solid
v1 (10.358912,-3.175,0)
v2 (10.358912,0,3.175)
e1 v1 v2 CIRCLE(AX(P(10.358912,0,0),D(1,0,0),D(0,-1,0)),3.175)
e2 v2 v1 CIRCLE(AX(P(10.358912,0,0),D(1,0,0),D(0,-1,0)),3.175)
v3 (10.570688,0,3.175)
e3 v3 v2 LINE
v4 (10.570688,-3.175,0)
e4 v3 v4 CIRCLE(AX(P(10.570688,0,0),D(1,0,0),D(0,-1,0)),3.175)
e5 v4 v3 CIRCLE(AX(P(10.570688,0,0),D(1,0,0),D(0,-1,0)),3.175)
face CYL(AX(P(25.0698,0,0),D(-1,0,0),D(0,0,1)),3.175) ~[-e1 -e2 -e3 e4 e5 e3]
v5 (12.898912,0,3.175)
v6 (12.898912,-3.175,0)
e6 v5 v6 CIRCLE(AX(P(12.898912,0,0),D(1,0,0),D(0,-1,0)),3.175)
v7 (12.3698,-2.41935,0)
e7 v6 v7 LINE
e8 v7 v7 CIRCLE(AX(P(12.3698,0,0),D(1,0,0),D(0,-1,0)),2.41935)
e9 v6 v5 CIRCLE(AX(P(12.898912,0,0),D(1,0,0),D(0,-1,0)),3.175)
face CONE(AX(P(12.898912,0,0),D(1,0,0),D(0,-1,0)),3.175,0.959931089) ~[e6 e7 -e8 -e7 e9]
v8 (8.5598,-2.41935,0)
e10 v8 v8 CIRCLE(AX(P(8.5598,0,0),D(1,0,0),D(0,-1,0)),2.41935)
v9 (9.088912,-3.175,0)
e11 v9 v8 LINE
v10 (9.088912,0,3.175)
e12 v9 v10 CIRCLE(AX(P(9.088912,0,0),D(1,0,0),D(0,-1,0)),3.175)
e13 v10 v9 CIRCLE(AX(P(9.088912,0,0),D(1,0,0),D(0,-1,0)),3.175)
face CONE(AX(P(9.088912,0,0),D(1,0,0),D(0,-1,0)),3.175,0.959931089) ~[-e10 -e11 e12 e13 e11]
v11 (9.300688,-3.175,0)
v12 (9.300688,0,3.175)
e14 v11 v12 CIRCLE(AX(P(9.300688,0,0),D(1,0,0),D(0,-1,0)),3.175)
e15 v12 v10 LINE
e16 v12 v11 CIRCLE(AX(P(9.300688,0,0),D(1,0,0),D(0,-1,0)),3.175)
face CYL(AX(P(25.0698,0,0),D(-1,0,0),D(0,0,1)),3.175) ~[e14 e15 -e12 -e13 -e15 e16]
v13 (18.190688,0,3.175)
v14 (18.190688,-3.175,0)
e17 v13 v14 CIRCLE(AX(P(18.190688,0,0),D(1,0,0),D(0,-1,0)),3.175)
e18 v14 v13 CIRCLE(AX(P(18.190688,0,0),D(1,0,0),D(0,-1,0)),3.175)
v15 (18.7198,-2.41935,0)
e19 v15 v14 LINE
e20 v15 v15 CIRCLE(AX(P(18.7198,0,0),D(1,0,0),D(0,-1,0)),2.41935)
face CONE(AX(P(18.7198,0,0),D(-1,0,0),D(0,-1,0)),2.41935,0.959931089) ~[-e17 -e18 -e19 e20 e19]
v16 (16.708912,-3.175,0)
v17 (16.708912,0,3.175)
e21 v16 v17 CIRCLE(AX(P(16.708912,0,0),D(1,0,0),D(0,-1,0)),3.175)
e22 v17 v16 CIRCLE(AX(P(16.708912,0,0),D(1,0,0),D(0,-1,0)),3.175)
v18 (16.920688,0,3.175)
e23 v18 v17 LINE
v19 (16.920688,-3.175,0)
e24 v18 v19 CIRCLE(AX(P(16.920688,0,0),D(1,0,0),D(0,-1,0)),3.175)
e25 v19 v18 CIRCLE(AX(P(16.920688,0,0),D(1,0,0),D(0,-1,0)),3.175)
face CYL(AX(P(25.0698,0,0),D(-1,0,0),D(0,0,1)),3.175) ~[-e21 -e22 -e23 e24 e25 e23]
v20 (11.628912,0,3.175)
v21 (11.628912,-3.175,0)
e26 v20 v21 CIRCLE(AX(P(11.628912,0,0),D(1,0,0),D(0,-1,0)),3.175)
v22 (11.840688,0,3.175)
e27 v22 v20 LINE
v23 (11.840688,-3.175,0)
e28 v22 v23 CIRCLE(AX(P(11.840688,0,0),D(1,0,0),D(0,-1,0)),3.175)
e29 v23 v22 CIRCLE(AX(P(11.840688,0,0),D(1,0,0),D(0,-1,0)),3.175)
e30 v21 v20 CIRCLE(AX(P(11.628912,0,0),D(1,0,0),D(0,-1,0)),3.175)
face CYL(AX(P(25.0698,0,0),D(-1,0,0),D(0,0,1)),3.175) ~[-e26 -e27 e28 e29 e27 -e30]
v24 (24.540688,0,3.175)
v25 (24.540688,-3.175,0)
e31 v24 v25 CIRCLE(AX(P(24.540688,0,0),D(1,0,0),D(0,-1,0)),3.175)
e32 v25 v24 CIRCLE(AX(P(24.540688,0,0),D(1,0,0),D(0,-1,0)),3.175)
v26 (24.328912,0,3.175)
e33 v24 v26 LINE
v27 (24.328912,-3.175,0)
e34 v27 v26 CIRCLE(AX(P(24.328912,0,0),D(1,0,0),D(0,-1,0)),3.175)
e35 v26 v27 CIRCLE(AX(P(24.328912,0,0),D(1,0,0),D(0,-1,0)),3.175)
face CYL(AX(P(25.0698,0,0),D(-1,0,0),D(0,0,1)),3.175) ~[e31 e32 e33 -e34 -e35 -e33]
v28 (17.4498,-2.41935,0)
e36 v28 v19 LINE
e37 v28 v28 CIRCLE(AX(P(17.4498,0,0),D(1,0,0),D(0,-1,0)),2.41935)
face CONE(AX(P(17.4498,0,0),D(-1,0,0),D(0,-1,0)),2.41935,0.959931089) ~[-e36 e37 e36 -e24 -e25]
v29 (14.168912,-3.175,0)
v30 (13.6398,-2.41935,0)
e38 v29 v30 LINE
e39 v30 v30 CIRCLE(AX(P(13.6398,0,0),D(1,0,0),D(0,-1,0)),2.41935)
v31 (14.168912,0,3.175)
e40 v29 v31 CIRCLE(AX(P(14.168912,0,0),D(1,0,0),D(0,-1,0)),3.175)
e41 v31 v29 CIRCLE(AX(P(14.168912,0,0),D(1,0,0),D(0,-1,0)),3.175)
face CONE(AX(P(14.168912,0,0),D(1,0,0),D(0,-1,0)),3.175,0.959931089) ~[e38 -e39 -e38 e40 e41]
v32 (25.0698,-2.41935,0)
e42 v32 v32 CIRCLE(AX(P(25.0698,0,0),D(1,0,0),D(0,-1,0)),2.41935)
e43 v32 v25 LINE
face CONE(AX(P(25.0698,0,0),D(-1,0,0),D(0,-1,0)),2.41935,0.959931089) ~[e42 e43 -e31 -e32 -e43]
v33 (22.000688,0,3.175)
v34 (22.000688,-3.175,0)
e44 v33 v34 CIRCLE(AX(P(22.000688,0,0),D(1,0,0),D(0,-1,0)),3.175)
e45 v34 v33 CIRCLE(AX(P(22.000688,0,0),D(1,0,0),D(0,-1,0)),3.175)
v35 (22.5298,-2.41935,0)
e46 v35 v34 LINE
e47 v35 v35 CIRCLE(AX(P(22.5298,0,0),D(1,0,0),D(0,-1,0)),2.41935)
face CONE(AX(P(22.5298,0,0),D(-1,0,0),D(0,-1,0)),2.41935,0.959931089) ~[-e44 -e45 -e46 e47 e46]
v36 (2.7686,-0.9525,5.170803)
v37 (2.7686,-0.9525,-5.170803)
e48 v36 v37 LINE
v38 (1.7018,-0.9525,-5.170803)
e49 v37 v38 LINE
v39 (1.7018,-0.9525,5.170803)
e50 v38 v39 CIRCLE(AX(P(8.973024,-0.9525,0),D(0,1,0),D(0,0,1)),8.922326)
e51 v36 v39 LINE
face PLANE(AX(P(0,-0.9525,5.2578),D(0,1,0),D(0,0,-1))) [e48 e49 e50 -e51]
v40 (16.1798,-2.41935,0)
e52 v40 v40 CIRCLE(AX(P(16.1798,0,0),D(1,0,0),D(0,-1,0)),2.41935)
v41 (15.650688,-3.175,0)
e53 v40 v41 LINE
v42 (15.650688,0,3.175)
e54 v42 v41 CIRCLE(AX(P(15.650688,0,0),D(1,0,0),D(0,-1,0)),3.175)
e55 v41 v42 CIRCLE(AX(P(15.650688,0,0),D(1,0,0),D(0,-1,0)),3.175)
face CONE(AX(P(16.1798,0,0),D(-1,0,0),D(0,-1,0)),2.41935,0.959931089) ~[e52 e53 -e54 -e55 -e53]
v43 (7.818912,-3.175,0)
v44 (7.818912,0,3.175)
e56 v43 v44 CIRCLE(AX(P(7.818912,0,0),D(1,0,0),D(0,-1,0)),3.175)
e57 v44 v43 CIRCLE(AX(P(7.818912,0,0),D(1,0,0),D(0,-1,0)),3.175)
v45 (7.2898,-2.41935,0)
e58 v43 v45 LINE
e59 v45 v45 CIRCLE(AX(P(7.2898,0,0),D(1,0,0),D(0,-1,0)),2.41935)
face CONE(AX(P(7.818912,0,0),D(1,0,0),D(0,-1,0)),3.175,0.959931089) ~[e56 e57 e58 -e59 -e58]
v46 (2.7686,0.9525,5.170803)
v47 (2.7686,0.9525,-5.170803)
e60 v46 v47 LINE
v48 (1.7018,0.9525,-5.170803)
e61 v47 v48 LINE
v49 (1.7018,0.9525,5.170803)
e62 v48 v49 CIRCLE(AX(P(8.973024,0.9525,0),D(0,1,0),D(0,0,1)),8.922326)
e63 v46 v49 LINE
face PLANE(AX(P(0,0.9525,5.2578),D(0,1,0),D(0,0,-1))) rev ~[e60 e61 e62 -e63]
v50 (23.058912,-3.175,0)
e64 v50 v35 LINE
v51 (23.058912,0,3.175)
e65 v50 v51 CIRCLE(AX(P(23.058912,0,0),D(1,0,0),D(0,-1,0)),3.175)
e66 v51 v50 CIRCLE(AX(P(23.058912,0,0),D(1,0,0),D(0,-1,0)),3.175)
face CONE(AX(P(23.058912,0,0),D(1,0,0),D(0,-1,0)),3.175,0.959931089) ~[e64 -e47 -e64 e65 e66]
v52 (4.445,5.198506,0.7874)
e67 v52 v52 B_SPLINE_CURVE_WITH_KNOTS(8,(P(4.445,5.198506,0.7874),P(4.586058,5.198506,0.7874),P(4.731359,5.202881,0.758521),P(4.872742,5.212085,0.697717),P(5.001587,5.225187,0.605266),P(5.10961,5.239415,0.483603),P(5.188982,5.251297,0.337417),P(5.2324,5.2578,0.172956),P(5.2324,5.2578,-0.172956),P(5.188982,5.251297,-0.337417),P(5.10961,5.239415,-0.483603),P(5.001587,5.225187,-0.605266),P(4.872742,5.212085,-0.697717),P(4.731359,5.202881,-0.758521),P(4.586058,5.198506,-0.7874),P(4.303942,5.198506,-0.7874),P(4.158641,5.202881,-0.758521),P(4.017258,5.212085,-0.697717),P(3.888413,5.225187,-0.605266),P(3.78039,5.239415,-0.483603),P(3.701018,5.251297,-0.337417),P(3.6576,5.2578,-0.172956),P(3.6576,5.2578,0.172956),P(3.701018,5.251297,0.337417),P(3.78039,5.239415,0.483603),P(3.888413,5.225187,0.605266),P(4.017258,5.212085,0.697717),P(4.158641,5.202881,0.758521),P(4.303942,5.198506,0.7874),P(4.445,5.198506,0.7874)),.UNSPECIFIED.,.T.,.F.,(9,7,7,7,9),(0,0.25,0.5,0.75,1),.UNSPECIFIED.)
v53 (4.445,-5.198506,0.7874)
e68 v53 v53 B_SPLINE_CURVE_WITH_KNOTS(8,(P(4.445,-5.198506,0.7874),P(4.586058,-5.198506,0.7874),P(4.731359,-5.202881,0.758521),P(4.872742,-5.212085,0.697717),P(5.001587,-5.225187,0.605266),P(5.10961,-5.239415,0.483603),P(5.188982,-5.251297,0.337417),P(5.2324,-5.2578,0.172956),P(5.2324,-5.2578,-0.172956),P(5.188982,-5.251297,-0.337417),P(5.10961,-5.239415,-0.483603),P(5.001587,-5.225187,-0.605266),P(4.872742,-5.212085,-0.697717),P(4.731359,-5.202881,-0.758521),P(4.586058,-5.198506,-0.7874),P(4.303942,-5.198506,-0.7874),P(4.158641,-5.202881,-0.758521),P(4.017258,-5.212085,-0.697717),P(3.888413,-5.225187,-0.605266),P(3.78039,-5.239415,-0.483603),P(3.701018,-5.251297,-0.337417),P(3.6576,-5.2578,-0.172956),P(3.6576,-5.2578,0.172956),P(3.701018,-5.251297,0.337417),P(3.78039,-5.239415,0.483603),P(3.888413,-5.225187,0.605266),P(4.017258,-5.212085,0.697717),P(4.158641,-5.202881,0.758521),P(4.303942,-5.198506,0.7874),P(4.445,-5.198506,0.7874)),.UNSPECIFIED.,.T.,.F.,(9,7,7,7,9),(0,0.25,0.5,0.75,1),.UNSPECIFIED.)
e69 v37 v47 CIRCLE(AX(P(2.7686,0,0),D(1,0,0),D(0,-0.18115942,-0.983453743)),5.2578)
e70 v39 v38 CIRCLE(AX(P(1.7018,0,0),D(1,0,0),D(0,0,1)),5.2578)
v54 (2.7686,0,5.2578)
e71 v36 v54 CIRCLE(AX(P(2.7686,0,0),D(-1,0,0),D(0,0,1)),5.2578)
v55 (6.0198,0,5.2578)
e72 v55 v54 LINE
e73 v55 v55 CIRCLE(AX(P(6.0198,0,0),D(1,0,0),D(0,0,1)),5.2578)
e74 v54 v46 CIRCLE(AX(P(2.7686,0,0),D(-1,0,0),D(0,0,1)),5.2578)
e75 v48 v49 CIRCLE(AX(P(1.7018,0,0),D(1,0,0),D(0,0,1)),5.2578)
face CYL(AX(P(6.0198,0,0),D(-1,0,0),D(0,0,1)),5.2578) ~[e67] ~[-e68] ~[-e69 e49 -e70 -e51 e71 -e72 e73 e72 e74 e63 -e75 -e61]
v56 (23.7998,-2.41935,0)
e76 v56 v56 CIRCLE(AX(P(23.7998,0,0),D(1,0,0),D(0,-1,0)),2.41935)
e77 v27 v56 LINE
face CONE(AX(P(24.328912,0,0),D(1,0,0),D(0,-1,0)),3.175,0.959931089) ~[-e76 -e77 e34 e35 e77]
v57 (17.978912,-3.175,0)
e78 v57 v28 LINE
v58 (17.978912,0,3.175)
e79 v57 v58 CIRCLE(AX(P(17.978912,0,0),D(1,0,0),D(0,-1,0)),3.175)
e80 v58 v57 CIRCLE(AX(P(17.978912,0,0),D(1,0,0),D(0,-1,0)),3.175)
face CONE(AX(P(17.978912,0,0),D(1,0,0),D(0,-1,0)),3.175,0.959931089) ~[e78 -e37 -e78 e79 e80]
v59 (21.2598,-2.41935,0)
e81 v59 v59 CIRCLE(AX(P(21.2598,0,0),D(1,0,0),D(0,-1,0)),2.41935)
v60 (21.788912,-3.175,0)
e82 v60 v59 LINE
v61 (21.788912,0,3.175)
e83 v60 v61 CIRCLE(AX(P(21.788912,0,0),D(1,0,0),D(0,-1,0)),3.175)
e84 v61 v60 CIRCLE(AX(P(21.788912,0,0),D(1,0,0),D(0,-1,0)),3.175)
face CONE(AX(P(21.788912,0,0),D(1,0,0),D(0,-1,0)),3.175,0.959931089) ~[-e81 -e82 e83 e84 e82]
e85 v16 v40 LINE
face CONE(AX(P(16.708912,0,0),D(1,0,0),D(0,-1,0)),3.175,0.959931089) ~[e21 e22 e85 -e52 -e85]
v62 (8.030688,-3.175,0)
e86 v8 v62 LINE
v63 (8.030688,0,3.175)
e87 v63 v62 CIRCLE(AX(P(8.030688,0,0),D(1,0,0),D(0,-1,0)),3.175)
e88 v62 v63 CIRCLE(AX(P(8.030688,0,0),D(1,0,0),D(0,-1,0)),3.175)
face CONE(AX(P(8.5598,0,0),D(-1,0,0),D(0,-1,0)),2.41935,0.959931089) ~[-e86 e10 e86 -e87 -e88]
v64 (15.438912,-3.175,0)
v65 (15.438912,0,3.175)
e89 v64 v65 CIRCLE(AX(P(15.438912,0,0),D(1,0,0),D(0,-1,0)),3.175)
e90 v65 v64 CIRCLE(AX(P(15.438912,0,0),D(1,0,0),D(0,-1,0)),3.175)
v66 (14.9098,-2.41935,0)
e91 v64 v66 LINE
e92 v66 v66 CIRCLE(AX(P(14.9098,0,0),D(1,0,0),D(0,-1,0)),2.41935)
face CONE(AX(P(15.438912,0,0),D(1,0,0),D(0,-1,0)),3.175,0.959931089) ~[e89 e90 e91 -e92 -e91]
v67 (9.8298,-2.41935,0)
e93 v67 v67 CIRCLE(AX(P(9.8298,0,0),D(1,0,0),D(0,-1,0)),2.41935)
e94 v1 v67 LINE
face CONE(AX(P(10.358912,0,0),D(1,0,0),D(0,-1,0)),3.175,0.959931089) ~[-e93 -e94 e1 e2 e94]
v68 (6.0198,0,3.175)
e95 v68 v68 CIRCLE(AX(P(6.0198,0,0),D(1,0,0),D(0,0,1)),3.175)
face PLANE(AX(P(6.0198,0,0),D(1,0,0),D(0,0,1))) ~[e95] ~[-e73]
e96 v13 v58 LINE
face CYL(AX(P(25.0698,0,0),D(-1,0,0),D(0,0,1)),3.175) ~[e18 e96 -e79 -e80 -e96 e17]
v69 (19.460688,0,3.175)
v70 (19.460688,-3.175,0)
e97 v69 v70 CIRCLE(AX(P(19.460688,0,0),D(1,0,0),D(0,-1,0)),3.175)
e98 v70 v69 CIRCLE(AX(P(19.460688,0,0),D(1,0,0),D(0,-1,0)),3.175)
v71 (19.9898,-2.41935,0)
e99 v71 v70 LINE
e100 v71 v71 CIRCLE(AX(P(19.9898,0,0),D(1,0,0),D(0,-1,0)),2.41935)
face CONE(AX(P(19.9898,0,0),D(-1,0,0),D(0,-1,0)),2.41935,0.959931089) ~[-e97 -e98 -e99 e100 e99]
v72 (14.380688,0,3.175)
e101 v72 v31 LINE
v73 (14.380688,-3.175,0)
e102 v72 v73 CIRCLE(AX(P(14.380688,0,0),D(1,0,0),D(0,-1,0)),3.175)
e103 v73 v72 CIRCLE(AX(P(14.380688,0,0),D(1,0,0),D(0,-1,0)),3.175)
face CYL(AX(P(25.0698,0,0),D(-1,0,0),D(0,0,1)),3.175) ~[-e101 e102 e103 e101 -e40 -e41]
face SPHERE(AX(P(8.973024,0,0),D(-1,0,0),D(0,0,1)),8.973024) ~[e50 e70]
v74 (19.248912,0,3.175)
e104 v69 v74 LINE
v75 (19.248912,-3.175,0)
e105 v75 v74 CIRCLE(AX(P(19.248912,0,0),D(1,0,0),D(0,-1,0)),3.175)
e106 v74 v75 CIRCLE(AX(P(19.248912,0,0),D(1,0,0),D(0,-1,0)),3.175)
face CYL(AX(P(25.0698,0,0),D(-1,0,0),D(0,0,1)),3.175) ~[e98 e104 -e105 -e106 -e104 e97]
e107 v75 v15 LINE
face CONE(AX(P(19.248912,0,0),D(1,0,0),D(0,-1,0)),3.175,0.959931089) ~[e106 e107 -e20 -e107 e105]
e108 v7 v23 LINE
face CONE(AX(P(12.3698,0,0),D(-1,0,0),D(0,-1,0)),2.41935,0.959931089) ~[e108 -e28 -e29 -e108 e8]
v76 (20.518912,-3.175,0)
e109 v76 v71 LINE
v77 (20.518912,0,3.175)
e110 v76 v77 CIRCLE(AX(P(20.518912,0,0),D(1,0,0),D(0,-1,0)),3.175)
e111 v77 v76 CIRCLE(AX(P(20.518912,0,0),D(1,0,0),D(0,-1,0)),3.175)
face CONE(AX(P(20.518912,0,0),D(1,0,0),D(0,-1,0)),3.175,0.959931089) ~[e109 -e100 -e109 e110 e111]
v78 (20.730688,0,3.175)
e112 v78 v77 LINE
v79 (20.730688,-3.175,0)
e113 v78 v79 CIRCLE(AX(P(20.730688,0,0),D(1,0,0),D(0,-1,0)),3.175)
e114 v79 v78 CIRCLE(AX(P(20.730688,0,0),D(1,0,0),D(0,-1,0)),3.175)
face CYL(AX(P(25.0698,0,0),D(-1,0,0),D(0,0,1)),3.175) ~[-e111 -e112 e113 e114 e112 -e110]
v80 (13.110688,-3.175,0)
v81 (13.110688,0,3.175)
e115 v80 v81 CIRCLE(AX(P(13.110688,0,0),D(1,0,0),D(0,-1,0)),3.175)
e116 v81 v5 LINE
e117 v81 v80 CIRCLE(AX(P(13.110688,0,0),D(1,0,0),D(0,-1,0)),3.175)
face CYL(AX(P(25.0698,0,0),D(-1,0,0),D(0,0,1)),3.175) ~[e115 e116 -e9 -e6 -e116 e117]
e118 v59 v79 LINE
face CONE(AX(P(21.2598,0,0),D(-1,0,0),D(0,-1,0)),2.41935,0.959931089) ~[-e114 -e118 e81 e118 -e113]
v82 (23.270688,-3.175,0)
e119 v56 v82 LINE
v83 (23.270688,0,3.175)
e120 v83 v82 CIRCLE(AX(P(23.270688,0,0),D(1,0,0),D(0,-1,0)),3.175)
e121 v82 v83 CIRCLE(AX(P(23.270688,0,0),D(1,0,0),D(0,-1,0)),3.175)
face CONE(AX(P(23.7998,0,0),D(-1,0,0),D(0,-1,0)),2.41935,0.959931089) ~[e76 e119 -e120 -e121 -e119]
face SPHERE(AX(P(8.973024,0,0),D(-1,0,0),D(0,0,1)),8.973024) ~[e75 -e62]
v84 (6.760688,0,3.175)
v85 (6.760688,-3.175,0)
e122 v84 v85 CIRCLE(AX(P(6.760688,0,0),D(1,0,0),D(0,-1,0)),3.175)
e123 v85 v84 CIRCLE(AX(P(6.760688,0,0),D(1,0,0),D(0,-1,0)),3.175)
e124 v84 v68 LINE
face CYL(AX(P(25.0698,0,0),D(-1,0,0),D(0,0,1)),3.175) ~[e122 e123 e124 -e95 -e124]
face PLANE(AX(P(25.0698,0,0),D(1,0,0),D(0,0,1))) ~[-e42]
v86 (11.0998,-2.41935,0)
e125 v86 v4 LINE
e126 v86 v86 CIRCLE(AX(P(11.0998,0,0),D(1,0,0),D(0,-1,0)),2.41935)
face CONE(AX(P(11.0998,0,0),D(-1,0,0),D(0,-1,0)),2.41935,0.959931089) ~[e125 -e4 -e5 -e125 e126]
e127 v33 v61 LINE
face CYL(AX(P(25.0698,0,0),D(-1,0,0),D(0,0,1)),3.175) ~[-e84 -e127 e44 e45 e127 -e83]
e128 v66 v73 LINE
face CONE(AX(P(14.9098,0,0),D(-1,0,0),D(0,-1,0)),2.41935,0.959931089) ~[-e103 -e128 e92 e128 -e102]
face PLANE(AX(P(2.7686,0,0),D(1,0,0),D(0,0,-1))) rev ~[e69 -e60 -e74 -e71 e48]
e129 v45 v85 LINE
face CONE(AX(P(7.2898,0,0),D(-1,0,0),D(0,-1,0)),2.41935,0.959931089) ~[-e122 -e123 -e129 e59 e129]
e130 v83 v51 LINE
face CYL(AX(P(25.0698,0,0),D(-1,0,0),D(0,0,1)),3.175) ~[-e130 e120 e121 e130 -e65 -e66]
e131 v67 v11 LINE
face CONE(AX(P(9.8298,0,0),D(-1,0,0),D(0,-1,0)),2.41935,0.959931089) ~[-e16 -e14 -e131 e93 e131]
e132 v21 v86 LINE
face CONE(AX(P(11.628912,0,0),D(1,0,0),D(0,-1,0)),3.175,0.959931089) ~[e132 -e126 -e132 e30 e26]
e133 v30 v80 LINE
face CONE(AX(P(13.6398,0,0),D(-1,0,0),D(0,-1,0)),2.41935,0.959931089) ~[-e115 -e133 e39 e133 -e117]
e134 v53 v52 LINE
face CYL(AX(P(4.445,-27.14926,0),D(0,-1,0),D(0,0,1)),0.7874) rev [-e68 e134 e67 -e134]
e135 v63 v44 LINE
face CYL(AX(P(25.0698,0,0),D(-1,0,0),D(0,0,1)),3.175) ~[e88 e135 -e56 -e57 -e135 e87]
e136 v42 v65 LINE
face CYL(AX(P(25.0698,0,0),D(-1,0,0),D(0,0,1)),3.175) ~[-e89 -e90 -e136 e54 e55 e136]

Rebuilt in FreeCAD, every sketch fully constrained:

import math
import FreeCAD as App
import Part
import Sketcher

V = App.Vector
Q = App.Units.Quantity

doc = App.newDocument("Part")
body = doc.addObject("PartDesign::Body", "Body")

# Sketch on XY plane
sketch1 = doc.addObject("Sketcher::SketchObject", "Sketch")
body.addObject(sketch1)
sketch1.AttachmentSupport = (doc.XY_Plane, [""])
sketch1.MapMode = "FlatFace"
sketch1.addGeometry(Part.LineSegment(V(6, 3.2, 0), V(6, 5.3, 0)), False)
sketch1.addGeometry(Part.LineSegment(V(6, 5.3, 0), V(1.7, 5.3, 0)), False)
sketch1.addGeometry(Part.ArcOfCircle(Part.Circle(V(9, 0, 0), V(0, 0, 1), 9), math.radians(144), math.radians(180)), False)
sketch1.addGeometry(Part.LineSegment(V(0, 0, 0), V(25.1, 0, 0)), False)
sketch1.addGeometry(Part.LineSegment(V(25.1, 0, 0), V(25.1, 3.2, 0)), False)
sketch1.addGeometry(Part.LineSegment(V(25.1, 3.2, 0), V(6, 3.2, 0)), False)
sketch1.addConstraint(Sketcher.Constraint("Coincident", 0, 2, 1, 1))
sketch1.addConstraint(Sketcher.Constraint("Coincident", 1, 2, 2, 1))
sketch1.addConstraint(Sketcher.Constraint("Coincident", 2, 2, 3, 1))
sketch1.addConstraint(Sketcher.Constraint("Coincident", 3, 2, 4, 1))
sketch1.addConstraint(Sketcher.Constraint("Coincident", 4, 2, 5, 1))
sketch1.addConstraint(Sketcher.Constraint("Coincident", 5, 2, 0, 1))
sketch1.addConstraint(Sketcher.Constraint("Vertical", 0))
sketch1.addConstraint(Sketcher.Constraint("Horizontal", 1))
sketch1.addConstraint(Sketcher.Constraint("Horizontal", 3))
sketch1.addConstraint(Sketcher.Constraint("Vertical", 4))
sketch1.addConstraint(Sketcher.Constraint("Horizontal", 5))
sketch1.addConstraint(Sketcher.Constraint("Coincident", 2, 2, -1, 1))
sketch1.addConstraint(Sketcher.Constraint("PointOnObject", 2, 3, -1))
sketch1.addConstraint(Sketcher.Constraint("DistanceX", 1, 2, 1, 1, Q("0.17 in")))
sketch1.addConstraint(Sketcher.Constraint("DistanceX", 5, 2, 5, 1, Q("0.75 in")))
sketch1.addConstraint(Sketcher.Constraint("DistanceX", 3, 1, 3, 2, Q("0.987 in")))
sketch1.addConstraint(Sketcher.Constraint("DistanceY", 0, 1, 0, 2, Q("0.082 in")))
sketch1.addConstraint(Sketcher.Constraint("DistanceY", 4, 1, 4, 2, Q("0.125 in")))
revolution = doc.addObject("PartDesign::Revolution", "Revolution")
body.addObject(revolution)
revolution.Profile = sketch1
revolution.ReferenceAxis = (sketch1, ["H_Axis"])
revolution.Angle = 360

# Sketch on YZ plane
sketch2 = doc.addObject("Sketcher::SketchObject", "Sketch001")
body.addObject(sketch2)
sketch2.AttachmentSupport = (doc.YZ_Plane, [""])
sketch2.MapMode = "FlatFace"
sketch2.addGeometry(Part.LineSegment(V(1, 5.3, 0), V(-1, 5.3, 0)), False)
sketch2.addGeometry(Part.LineSegment(V(-1, 5.3, 0), V(-1, -5.3, 0)), False)
sketch2.addGeometry(Part.LineSegment(V(-1, -5.3, 0), V(1, -5.3, 0)), False)
sketch2.addGeometry(Part.LineSegment(V(1, -5.3, 0), V(1, 5.3, 0)), False)
sketch2.addConstraint(Sketcher.Constraint("Coincident", 0, 2, 1, 1))
sketch2.addConstraint(Sketcher.Constraint("Coincident", 1, 2, 2, 1))
sketch2.addConstraint(Sketcher.Constraint("Coincident", 2, 2, 3, 1))
sketch2.addConstraint(Sketcher.Constraint("Coincident", 3, 2, 0, 1))
sketch2.addConstraint(Sketcher.Constraint("Horizontal", 0))
sketch2.addConstraint(Sketcher.Constraint("Vertical", 1))
sketch2.addConstraint(Sketcher.Constraint("Horizontal", 2))
sketch2.addConstraint(Sketcher.Constraint("Vertical", 3))
sketch2.addConstraint(Sketcher.Constraint("Symmetric", 0, 2, 2, 2, -1, 1))
sketch2.addConstraint(Sketcher.Constraint("DistanceX", 0, 2, 0, 1, Q("0.075 in")))
sketch2.addConstraint(Sketcher.Constraint("DistanceY", 1, 2, 1, 1, Q("0.414 in")))
pocket1 = doc.addObject("PartDesign::Pocket", "Pocket")
body.addObject(pocket1)
pocket1.Profile = sketch2
pocket1.Length = Q("0.109 in")
pocket1.Reversed = True

# Sketch on XZ plane
sketch3 = doc.addObject("Sketcher::SketchObject", "Sketch002")
body.addObject(sketch3)
sketch3.AttachmentSupport = (doc.XZ_Plane, [""])
sketch3.MapMode = "FlatFace"
sketch3.addGeometry(Part.Circle(V(4.4, 0, 0), V(0, 0, 1), 0.8), False)
sketch3.addConstraint(Sketcher.Constraint("PointOnObject", 0, 3, -1))
sketch3.addConstraint(Sketcher.Constraint("Diameter", 0, Q("0.062 in")))
sketch3.addConstraint(Sketcher.Constraint("DistanceX", -1, 1, 0, 3, Q("0.175 in")))
pocket2 = doc.addObject("PartDesign::Pocket", "Pocket001")
body.addObject(pocket2)
pocket2.Profile = sketch3
pocket2.Type = "ThroughAll"
pocket2.Midplane = True

# Sketch on XY plane
sketch4 = doc.addObject("Sketcher::SketchObject", "Sketch003")
body.addObject(sketch4)
sketch4.AttachmentSupport = (doc.XY_Plane, [""])
sketch4.MapMode = "FlatFace"
sketch4.addGeometry(Part.LineSegment(V(7.3, -2.4, 0), V(6.8, -3.2, 0)), False)
sketch4.addGeometry(Part.LineSegment(V(6.8, -3.2, 0), V(6.8, -4, 0)), False)
sketch4.addGeometry(Part.LineSegment(V(6.8, -4, 0), V(7.8, -4, 0)), False)
sketch4.addGeometry(Part.LineSegment(V(7.8, -4, 0), V(7.8, -3.2, 0)), False)
sketch4.addGeometry(Part.LineSegment(V(7.8, -3.2, 0), V(7.3, -2.4, 0)), False)
sketch4.addConstraint(Sketcher.Constraint("Coincident", 0, 2, 1, 1))
sketch4.addConstraint(Sketcher.Constraint("Coincident", 1, 2, 2, 1))
sketch4.addConstraint(Sketcher.Constraint("Coincident", 2, 2, 3, 1))
sketch4.addConstraint(Sketcher.Constraint("Coincident", 3, 2, 4, 1))
sketch4.addConstraint(Sketcher.Constraint("Coincident", 4, 2, 0, 1))
sketch4.addConstraint(Sketcher.Constraint("Vertical", 1))
sketch4.addConstraint(Sketcher.Constraint("Horizontal", 2))
sketch4.addConstraint(Sketcher.Constraint("Vertical", 3))
sketch4.addConstraint(Sketcher.Constraint("Horizontal", 0, 2, 3, 2))
sketch4.addConstraint(Sketcher.Constraint("Equal", 0, 4))
sketch4.addConstraint(Sketcher.Constraint("Angle", 0, Q("-125 deg")))
sketch4.addConstraint(Sketcher.Constraint("DistanceY", 1, 2, 1, 1, Q("0.03125 in")))
sketch4.addConstraint(Sketcher.Constraint("DistanceY", 0, 2, -1, 1, Q("0.125 in")))
sketch4.addConstraint(Sketcher.Constraint("DistanceX", -1, 1, 4, 2, Q("0.287 in")))
sketch4.addConstraint(Sketcher.Constraint("DistanceY", 1, 2, 4, 2, Q("0.061 in")))
groove = doc.addObject("PartDesign::Groove", "Groove")
body.addObject(groove)
groove.Profile = sketch4
groove.ReferenceAxis = (sketch4, ["H_Axis"])
groove.Angle = 360
doc.recompute()

linearpattern = doc.addObject("PartDesign::LinearPattern", "LinearPattern")
body.addObject(linearpattern)
linearpattern.Originals = [groove]
linearpattern.Direction = (doc.X_Axis, [""])
linearpattern.Mode = "offset"
linearpattern.Offset = Q("0.05 in")
linearpattern.Occurrences = 15
body.Tip = linearpattern

doc.recompute()
